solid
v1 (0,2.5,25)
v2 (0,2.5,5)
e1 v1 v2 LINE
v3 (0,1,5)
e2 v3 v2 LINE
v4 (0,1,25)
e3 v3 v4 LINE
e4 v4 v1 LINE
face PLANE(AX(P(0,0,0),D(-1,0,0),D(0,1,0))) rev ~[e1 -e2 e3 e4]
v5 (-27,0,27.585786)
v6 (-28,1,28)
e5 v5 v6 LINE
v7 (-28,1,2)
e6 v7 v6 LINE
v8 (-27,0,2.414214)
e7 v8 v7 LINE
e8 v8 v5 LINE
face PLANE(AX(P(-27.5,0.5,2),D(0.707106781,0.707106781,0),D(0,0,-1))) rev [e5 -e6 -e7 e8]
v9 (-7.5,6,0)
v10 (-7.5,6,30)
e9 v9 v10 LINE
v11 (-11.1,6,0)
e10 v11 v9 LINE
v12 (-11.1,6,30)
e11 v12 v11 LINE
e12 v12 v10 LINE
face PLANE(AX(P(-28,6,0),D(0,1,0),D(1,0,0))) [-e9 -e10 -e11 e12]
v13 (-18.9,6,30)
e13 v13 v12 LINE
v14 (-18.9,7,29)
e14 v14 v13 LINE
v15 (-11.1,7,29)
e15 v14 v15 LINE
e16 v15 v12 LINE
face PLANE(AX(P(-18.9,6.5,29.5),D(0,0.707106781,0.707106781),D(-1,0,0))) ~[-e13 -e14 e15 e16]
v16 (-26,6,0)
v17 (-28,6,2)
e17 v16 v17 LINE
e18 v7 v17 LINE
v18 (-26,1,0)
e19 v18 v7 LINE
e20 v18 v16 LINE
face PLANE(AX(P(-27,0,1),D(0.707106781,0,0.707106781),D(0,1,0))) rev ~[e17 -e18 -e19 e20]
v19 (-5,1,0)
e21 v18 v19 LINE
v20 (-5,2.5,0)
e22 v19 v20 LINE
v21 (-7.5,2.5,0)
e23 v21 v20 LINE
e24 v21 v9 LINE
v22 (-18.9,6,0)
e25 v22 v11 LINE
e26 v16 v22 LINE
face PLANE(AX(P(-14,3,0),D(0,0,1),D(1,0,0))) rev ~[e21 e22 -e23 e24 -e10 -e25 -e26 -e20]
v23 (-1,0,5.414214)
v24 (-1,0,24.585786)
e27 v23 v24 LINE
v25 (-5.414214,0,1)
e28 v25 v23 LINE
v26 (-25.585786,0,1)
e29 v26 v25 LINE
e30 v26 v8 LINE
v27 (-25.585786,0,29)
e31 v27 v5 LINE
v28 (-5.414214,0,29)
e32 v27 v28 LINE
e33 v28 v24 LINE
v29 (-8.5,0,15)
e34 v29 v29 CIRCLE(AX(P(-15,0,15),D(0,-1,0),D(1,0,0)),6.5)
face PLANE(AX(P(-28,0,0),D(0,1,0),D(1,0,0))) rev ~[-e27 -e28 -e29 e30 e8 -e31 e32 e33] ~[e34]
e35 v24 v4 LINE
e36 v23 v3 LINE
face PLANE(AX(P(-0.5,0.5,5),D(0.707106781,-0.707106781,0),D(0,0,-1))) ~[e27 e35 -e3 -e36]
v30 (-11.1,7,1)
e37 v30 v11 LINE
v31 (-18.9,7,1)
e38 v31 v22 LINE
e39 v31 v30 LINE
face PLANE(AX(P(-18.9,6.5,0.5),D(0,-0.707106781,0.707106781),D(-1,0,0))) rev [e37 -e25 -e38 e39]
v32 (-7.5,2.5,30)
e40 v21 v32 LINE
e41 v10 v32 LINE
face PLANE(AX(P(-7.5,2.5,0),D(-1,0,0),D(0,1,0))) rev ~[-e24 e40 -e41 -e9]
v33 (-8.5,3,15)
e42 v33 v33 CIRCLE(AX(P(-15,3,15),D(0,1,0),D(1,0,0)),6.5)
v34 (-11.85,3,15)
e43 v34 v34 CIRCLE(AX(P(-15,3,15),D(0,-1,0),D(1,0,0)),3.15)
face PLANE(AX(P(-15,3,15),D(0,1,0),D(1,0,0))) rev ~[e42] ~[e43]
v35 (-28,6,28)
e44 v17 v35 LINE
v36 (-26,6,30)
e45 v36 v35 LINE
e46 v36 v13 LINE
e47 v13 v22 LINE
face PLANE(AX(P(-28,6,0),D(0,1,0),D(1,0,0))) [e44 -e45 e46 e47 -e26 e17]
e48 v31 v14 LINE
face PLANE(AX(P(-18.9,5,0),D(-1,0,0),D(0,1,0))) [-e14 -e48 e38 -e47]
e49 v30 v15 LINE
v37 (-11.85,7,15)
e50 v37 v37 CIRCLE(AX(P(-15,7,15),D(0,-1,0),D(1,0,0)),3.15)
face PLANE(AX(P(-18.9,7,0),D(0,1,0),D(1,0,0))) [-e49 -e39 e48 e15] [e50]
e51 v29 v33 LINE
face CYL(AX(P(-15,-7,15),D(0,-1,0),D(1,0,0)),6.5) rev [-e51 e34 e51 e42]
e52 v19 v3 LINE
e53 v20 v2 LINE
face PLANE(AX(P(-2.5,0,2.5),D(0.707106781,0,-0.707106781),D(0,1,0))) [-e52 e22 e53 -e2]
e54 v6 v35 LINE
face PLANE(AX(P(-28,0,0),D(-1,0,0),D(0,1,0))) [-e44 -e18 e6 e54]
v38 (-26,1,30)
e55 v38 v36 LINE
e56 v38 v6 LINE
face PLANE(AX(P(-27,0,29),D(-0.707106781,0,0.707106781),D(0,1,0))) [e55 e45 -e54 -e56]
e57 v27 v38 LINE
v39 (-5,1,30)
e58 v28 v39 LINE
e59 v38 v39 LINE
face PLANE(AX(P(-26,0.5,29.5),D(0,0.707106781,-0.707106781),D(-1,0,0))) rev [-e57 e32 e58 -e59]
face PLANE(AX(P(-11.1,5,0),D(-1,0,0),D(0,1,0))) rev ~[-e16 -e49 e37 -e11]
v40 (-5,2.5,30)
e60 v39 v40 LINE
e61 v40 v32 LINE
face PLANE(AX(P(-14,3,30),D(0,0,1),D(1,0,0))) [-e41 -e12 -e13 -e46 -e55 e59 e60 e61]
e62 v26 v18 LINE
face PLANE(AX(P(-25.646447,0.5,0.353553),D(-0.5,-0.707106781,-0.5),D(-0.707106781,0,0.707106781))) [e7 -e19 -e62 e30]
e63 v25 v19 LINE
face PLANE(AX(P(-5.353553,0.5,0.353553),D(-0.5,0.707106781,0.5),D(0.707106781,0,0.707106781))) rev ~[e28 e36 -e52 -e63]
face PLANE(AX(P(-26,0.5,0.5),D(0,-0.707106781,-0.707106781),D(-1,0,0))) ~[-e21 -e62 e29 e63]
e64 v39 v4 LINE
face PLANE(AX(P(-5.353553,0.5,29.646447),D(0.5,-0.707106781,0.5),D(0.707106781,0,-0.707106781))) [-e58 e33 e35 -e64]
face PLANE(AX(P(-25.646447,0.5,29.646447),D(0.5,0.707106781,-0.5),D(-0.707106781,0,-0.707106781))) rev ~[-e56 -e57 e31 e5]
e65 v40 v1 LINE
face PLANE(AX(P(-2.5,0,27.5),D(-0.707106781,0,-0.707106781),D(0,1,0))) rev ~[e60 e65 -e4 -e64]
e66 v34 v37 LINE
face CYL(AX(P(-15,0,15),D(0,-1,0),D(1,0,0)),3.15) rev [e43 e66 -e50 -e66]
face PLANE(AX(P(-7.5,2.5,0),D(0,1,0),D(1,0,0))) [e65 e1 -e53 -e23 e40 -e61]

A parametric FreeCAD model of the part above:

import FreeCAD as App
import Part
import Sketcher
Q = App.Units.Quantity


def edges_at(feature, points):
    """Names of the edges that pass closest to the given points."""
    edges = feature.Shape.Edges
    near = lambda p: min(range(len(edges)), key=lambda i: edges[i].distToShape(Part.Vertex(*p))[0])
    return sorted({f"Edge{near(p) + 1}" for p in points})


def add_polygon(sketch, points):
    """Adds a closed chain of lines whose ends are joined by coincident constraints."""
    first, n = sketch.GeometryCount, len(points)
    for a, b in zip(points, points[1:] + points[:1]):
        sketch.addGeometry(Part.LineSegment(App.Vector(*a, 0), App.Vector(*b, 0)), False)
    for i in range(n):
        sketch.addConstraint(Sketcher.Constraint("Coincident", first + i, 2, first + (i + 1) % n, 1))

doc = App.newDocument("Part")
params = doc.addObject("Spreadsheet::Sheet", "Params")
for row, (alias, value) in enumerate([
    ("sketch1_diameter", "13 mm"),
    ("pad1_length", "10 mm"),
    ("sketch2_diameter", "6.3 mm"),
    ("pad2_length", "10 mm"),
    ("sketch3_width", "16 mm"),
    ("sketch3_height", "9 mm"),
    ("pad3_length", "31 mm"),
    ("sketch4_width", "28 mm"),
    ("sketch4_height", "6 mm"),
    ("pad4_length", "30 mm"),
    ("chamfer_size", "5 mm"),
    ("chamfer2_size", "2 mm"),
    ("chamfer3_size", "1 mm"),
    ("sketch5_height", "2 mm"),
    ("sketch5_width", "7.8 mm"),
    ("pad5_length", "30 mm"),
    ("chamfer4_size", "1 mm"),
], start=1):
    params.set(f"A{row}", alias)
    params.set(f"B{row}", "=" + value)
    params.setAlias(f"B{row}", alias)

body = doc.addObject("PartDesign::Body", "Body")

sketch1 = doc.addObject("Sketcher::SketchObject", "Sketch")
body.addObject(sketch1)
sketch1.AttachmentSupport = (doc.XZ_Plane, [""])
sketch1.MapMode = "FlatFace"
sketch1.AttachmentOffset = App.Placement(App.Vector(0, 0, 7), App.Rotation())
sketch1.addGeometry(Part.Circle(App.Vector(-15, 15, 0), App.Vector(0, 0, 1), 6), False)
sketch1.addConstraint([
    Sketcher.Constraint("Diameter", 0, Q("13 mm")),
    Sketcher.Constraint("DistanceX", 0, 3, -1, 1, Q("15 mm")),
    Sketcher.Constraint("DistanceY", -1, 1, 0, 3, Q("15 mm")),
])
sketch1.setExpression("Constraints[0]", "Params.sketch1_diameter")
pad1 = doc.addObject("PartDesign::Pad", "Pad")
body.addObject(pad1)
pad1.Profile = sketch1
pad1.setExpression("Length", "Params.pad1_length")
pad1.Reversed = True
body2 = doc.addObject("PartDesign::Body", "Body001")

sketch2 = doc.addObject("Sketcher::SketchObject", "Sketch001")
body2.addObject(sketch2)
sketch2.AttachmentSupport = (doc.getObject("XZ_Plane001"), [""])
sketch2.MapMode = "FlatFace"
sketch2.addGeometry(Part.Circle(App.Vector(-15, 15, 0), App.Vector(0, 0, 1), 3.1), False)
sketch2.addConstraint([
    Sketcher.Constraint("Diameter", 0, Q("6.3 mm")),
    Sketcher.Constraint("DistanceX", 0, 3, -1, 1, Q("15 mm")),
    Sketcher.Constraint("DistanceY", -1, 1, 0, 3, Q("15 mm")),
])
sketch2.setExpression("Constraints[0]", "Params.sketch2_diameter")
pad2 = doc.addObject("PartDesign::Pad", "Pad001")
body2.addObject(pad2)
pad2.Profile = sketch2
pad2.setExpression("Length", "Params.pad2_length")
pad2.Reversed = True
body3 = doc.addObject("PartDesign::Body", "Body002")

sketch3 = doc.addObject("Sketcher::SketchObject", "Sketch002")
body3.addObject(sketch3)
sketch3.AttachmentSupport = (doc.getObject("XY_Plane002"), [""])
sketch3.MapMode = "FlatFace"
add_polygon(sketch3, [(-8, 12), (-8, 2), (8, 2), (8, 12)])
sketch3.addConstraint([
    Sketcher.Constraint("Vertical", 0),
    Sketcher.Constraint("Horizontal", 1),
    Sketcher.Constraint("Vertical", 2),
    Sketcher.Constraint("Horizontal", 3),
    Sketcher.Constraint("DistanceX", 1, 1, 1, 2, Q("16 mm")),
    Sketcher.Constraint("DistanceY", 0, 2, 0, 1, Q("9 mm")),
    Sketcher.Constraint("DistanceX", 0, 2, -1, 1, Q("7.5 mm")),
    Sketcher.Constraint("DistanceY", -1, 1, 0, 2, Q("2.5 mm")),
])
sketch3.setExpression("Constraints[8]", "Params.sketch3_width")
sketch3.setExpression("Constraints[9]", "Params.sketch3_height")
pad3 = doc.addObject("PartDesign::Pad", "Pad002")
body3.addObject(pad3)
pad3.Profile = sketch3
pad3.setExpression("Length", "Params.pad3_length")
body4 = doc.addObject("PartDesign::Body", "Body003")

sketch4 = doc.addObject("Sketcher::SketchObject", "Sketch003")
body4.addObject(sketch4)
sketch4.AttachmentSupport = (doc.getObject("XY_Plane003"), [""])
sketch4.MapMode = "FlatFace"
add_polygon(sketch4, [(-28, 6), (-28, 0), (0, 0), (0, 6)])
sketch4.addConstraint([
    Sketcher.Constraint("Vertical", 0),
    Sketcher.Constraint("Horizontal", 1),
    Sketcher.Constraint("Vertical", 2),
    Sketcher.Constraint("Horizontal", 3),
    Sketcher.Constraint("Coincident", 1, 2, -1, 1),
    Sketcher.Constraint("DistanceX", 1, 1, 1, 2, Q("28 mm")),
    Sketcher.Constraint("DistanceY", 0, 2, 0, 1, Q("6 mm")),
])
sketch4.setExpression("Constraints[9]", "Params.sketch4_width")
sketch4.setExpression("Constraints[10]", "Params.sketch4_height")
pad4 = doc.addObject("PartDesign::Pad", "Pad003")
body4.addObject(pad4)
pad4.Profile = sketch4
pad4.setExpression("Length", "Params.pad4_length")
doc.recompute()

boolean = doc.addObject("PartDesign::Boolean", "Boolean")
body4.addObject(boolean)
boolean.Type = "Cut"
boolean.addObjects([body3])
doc.recompute()

chamfer = doc.addObject("PartDesign::Chamfer", "Chamfer")
body4.addObject(chamfer)
chamfer.Base = (boolean, edges_at(boolean, [(0, 1.25, 30), (0, 1.25, 0)]))
chamfer.setExpression("Size", "Params.chamfer_size")
doc.recompute()

chamfer2 = doc.addObject("PartDesign::Chamfer", "Chamfer001")
body4.addObject(chamfer2)
chamfer2.Base = (chamfer, edges_at(chamfer, [(-28, 3, 0), (-28, 3, 30)]))
chamfer2.setExpression("Size", "Params.chamfer2_size")
doc.recompute()

chamfer3 = doc.addObject("PartDesign::Chamfer", "Chamfer002")
body4.addObject(chamfer3)
chamfer3.Base = (chamfer2, edges_at(chamfer2, [
    (-15.5, 0, 0),
    (-27, 0, 1),
    (-28, 0, 15),
    (-27, 0, 29),
    (-15.5, 0, 30),
    (-2.5, 0, 27.5),
    (0, 0, 15),
    (-2.5, 0, 2.5),
]))
chamfer3.setExpression("Size", "Params.chamfer3_size")
body5 = doc.addObject("PartDesign::Body", "Body004")

sketch5 = doc.addObject("Sketcher::SketchObject", "Sketch004")
body5.addObject(sketch5)
sketch5.AttachmentSupport = (doc.getObject("XY_Plane004"), [""])
sketch5.MapMode = "FlatFace"
add_polygon(sketch5, [(-18.9, 7), (-18.9, 5), (-11.1, 5), (-11.1, 7)])
sketch5.addConstraint([
    Sketcher.Constraint("Vertical", 0),
    Sketcher.Constraint("Horizontal", 1),
    Sketcher.Constraint("Vertical", 2),
    Sketcher.Constraint("Horizontal", 3),
    Sketcher.Constraint("DistanceY", 0, 2, 0, 1, Q("2 mm")),
    Sketcher.Constraint("DistanceX", 1, 1, 1, 2, Q("7.8 mm")),
    Sketcher.Constraint("DistanceY", -1, 1, 0, 2, Q("5 mm")),
    Sketcher.Constraint("DistanceX", 0, 2, -1, 1, Q("18.9 mm")),
])
sketch5.setExpression("Constraints[8]", "Params.sketch5_height")
sketch5.setExpression("Constraints[9]", "Params.sketch5_width")
pad5 = doc.addObject("PartDesign::Pad", "Pad004")
body5.addObject(pad5)
pad5.Profile = sketch5
pad5.setExpression("Length", "Params.pad5_length")
doc.recompute()

chamfer4 = doc.addObject("PartDesign::Chamfer", "Chamfer003")
body5.addObject(chamfer4)
chamfer4.Base = (pad5, edges_at(pad5, [(-15, 7, 0), (-15, 7, 30)]))
chamfer4.setExpression("Size", "Params.chamfer4_size")
doc.recompute()

boolean2 = doc.addObject("PartDesign::Boolean", "Boolean001")
body5.addObject(boolean2)
boolean2.Type = "Fuse"
boolean2.addObjects([body4])
doc.recompute()

boolean3 = doc.addObject("PartDesign::Boolean", "Boolean002")
body5.addObject(boolean3)
boolean3.Type = "Cut"
boolean3.addObjects([body2])
doc.recompute()

boolean4 = doc.addObject("PartDesign::Boolean", "Boolean003")
body5.addObject(boolean4)
boolean4.Type = "Cut"
boolean4.addObjects([body])

doc.recompute()
